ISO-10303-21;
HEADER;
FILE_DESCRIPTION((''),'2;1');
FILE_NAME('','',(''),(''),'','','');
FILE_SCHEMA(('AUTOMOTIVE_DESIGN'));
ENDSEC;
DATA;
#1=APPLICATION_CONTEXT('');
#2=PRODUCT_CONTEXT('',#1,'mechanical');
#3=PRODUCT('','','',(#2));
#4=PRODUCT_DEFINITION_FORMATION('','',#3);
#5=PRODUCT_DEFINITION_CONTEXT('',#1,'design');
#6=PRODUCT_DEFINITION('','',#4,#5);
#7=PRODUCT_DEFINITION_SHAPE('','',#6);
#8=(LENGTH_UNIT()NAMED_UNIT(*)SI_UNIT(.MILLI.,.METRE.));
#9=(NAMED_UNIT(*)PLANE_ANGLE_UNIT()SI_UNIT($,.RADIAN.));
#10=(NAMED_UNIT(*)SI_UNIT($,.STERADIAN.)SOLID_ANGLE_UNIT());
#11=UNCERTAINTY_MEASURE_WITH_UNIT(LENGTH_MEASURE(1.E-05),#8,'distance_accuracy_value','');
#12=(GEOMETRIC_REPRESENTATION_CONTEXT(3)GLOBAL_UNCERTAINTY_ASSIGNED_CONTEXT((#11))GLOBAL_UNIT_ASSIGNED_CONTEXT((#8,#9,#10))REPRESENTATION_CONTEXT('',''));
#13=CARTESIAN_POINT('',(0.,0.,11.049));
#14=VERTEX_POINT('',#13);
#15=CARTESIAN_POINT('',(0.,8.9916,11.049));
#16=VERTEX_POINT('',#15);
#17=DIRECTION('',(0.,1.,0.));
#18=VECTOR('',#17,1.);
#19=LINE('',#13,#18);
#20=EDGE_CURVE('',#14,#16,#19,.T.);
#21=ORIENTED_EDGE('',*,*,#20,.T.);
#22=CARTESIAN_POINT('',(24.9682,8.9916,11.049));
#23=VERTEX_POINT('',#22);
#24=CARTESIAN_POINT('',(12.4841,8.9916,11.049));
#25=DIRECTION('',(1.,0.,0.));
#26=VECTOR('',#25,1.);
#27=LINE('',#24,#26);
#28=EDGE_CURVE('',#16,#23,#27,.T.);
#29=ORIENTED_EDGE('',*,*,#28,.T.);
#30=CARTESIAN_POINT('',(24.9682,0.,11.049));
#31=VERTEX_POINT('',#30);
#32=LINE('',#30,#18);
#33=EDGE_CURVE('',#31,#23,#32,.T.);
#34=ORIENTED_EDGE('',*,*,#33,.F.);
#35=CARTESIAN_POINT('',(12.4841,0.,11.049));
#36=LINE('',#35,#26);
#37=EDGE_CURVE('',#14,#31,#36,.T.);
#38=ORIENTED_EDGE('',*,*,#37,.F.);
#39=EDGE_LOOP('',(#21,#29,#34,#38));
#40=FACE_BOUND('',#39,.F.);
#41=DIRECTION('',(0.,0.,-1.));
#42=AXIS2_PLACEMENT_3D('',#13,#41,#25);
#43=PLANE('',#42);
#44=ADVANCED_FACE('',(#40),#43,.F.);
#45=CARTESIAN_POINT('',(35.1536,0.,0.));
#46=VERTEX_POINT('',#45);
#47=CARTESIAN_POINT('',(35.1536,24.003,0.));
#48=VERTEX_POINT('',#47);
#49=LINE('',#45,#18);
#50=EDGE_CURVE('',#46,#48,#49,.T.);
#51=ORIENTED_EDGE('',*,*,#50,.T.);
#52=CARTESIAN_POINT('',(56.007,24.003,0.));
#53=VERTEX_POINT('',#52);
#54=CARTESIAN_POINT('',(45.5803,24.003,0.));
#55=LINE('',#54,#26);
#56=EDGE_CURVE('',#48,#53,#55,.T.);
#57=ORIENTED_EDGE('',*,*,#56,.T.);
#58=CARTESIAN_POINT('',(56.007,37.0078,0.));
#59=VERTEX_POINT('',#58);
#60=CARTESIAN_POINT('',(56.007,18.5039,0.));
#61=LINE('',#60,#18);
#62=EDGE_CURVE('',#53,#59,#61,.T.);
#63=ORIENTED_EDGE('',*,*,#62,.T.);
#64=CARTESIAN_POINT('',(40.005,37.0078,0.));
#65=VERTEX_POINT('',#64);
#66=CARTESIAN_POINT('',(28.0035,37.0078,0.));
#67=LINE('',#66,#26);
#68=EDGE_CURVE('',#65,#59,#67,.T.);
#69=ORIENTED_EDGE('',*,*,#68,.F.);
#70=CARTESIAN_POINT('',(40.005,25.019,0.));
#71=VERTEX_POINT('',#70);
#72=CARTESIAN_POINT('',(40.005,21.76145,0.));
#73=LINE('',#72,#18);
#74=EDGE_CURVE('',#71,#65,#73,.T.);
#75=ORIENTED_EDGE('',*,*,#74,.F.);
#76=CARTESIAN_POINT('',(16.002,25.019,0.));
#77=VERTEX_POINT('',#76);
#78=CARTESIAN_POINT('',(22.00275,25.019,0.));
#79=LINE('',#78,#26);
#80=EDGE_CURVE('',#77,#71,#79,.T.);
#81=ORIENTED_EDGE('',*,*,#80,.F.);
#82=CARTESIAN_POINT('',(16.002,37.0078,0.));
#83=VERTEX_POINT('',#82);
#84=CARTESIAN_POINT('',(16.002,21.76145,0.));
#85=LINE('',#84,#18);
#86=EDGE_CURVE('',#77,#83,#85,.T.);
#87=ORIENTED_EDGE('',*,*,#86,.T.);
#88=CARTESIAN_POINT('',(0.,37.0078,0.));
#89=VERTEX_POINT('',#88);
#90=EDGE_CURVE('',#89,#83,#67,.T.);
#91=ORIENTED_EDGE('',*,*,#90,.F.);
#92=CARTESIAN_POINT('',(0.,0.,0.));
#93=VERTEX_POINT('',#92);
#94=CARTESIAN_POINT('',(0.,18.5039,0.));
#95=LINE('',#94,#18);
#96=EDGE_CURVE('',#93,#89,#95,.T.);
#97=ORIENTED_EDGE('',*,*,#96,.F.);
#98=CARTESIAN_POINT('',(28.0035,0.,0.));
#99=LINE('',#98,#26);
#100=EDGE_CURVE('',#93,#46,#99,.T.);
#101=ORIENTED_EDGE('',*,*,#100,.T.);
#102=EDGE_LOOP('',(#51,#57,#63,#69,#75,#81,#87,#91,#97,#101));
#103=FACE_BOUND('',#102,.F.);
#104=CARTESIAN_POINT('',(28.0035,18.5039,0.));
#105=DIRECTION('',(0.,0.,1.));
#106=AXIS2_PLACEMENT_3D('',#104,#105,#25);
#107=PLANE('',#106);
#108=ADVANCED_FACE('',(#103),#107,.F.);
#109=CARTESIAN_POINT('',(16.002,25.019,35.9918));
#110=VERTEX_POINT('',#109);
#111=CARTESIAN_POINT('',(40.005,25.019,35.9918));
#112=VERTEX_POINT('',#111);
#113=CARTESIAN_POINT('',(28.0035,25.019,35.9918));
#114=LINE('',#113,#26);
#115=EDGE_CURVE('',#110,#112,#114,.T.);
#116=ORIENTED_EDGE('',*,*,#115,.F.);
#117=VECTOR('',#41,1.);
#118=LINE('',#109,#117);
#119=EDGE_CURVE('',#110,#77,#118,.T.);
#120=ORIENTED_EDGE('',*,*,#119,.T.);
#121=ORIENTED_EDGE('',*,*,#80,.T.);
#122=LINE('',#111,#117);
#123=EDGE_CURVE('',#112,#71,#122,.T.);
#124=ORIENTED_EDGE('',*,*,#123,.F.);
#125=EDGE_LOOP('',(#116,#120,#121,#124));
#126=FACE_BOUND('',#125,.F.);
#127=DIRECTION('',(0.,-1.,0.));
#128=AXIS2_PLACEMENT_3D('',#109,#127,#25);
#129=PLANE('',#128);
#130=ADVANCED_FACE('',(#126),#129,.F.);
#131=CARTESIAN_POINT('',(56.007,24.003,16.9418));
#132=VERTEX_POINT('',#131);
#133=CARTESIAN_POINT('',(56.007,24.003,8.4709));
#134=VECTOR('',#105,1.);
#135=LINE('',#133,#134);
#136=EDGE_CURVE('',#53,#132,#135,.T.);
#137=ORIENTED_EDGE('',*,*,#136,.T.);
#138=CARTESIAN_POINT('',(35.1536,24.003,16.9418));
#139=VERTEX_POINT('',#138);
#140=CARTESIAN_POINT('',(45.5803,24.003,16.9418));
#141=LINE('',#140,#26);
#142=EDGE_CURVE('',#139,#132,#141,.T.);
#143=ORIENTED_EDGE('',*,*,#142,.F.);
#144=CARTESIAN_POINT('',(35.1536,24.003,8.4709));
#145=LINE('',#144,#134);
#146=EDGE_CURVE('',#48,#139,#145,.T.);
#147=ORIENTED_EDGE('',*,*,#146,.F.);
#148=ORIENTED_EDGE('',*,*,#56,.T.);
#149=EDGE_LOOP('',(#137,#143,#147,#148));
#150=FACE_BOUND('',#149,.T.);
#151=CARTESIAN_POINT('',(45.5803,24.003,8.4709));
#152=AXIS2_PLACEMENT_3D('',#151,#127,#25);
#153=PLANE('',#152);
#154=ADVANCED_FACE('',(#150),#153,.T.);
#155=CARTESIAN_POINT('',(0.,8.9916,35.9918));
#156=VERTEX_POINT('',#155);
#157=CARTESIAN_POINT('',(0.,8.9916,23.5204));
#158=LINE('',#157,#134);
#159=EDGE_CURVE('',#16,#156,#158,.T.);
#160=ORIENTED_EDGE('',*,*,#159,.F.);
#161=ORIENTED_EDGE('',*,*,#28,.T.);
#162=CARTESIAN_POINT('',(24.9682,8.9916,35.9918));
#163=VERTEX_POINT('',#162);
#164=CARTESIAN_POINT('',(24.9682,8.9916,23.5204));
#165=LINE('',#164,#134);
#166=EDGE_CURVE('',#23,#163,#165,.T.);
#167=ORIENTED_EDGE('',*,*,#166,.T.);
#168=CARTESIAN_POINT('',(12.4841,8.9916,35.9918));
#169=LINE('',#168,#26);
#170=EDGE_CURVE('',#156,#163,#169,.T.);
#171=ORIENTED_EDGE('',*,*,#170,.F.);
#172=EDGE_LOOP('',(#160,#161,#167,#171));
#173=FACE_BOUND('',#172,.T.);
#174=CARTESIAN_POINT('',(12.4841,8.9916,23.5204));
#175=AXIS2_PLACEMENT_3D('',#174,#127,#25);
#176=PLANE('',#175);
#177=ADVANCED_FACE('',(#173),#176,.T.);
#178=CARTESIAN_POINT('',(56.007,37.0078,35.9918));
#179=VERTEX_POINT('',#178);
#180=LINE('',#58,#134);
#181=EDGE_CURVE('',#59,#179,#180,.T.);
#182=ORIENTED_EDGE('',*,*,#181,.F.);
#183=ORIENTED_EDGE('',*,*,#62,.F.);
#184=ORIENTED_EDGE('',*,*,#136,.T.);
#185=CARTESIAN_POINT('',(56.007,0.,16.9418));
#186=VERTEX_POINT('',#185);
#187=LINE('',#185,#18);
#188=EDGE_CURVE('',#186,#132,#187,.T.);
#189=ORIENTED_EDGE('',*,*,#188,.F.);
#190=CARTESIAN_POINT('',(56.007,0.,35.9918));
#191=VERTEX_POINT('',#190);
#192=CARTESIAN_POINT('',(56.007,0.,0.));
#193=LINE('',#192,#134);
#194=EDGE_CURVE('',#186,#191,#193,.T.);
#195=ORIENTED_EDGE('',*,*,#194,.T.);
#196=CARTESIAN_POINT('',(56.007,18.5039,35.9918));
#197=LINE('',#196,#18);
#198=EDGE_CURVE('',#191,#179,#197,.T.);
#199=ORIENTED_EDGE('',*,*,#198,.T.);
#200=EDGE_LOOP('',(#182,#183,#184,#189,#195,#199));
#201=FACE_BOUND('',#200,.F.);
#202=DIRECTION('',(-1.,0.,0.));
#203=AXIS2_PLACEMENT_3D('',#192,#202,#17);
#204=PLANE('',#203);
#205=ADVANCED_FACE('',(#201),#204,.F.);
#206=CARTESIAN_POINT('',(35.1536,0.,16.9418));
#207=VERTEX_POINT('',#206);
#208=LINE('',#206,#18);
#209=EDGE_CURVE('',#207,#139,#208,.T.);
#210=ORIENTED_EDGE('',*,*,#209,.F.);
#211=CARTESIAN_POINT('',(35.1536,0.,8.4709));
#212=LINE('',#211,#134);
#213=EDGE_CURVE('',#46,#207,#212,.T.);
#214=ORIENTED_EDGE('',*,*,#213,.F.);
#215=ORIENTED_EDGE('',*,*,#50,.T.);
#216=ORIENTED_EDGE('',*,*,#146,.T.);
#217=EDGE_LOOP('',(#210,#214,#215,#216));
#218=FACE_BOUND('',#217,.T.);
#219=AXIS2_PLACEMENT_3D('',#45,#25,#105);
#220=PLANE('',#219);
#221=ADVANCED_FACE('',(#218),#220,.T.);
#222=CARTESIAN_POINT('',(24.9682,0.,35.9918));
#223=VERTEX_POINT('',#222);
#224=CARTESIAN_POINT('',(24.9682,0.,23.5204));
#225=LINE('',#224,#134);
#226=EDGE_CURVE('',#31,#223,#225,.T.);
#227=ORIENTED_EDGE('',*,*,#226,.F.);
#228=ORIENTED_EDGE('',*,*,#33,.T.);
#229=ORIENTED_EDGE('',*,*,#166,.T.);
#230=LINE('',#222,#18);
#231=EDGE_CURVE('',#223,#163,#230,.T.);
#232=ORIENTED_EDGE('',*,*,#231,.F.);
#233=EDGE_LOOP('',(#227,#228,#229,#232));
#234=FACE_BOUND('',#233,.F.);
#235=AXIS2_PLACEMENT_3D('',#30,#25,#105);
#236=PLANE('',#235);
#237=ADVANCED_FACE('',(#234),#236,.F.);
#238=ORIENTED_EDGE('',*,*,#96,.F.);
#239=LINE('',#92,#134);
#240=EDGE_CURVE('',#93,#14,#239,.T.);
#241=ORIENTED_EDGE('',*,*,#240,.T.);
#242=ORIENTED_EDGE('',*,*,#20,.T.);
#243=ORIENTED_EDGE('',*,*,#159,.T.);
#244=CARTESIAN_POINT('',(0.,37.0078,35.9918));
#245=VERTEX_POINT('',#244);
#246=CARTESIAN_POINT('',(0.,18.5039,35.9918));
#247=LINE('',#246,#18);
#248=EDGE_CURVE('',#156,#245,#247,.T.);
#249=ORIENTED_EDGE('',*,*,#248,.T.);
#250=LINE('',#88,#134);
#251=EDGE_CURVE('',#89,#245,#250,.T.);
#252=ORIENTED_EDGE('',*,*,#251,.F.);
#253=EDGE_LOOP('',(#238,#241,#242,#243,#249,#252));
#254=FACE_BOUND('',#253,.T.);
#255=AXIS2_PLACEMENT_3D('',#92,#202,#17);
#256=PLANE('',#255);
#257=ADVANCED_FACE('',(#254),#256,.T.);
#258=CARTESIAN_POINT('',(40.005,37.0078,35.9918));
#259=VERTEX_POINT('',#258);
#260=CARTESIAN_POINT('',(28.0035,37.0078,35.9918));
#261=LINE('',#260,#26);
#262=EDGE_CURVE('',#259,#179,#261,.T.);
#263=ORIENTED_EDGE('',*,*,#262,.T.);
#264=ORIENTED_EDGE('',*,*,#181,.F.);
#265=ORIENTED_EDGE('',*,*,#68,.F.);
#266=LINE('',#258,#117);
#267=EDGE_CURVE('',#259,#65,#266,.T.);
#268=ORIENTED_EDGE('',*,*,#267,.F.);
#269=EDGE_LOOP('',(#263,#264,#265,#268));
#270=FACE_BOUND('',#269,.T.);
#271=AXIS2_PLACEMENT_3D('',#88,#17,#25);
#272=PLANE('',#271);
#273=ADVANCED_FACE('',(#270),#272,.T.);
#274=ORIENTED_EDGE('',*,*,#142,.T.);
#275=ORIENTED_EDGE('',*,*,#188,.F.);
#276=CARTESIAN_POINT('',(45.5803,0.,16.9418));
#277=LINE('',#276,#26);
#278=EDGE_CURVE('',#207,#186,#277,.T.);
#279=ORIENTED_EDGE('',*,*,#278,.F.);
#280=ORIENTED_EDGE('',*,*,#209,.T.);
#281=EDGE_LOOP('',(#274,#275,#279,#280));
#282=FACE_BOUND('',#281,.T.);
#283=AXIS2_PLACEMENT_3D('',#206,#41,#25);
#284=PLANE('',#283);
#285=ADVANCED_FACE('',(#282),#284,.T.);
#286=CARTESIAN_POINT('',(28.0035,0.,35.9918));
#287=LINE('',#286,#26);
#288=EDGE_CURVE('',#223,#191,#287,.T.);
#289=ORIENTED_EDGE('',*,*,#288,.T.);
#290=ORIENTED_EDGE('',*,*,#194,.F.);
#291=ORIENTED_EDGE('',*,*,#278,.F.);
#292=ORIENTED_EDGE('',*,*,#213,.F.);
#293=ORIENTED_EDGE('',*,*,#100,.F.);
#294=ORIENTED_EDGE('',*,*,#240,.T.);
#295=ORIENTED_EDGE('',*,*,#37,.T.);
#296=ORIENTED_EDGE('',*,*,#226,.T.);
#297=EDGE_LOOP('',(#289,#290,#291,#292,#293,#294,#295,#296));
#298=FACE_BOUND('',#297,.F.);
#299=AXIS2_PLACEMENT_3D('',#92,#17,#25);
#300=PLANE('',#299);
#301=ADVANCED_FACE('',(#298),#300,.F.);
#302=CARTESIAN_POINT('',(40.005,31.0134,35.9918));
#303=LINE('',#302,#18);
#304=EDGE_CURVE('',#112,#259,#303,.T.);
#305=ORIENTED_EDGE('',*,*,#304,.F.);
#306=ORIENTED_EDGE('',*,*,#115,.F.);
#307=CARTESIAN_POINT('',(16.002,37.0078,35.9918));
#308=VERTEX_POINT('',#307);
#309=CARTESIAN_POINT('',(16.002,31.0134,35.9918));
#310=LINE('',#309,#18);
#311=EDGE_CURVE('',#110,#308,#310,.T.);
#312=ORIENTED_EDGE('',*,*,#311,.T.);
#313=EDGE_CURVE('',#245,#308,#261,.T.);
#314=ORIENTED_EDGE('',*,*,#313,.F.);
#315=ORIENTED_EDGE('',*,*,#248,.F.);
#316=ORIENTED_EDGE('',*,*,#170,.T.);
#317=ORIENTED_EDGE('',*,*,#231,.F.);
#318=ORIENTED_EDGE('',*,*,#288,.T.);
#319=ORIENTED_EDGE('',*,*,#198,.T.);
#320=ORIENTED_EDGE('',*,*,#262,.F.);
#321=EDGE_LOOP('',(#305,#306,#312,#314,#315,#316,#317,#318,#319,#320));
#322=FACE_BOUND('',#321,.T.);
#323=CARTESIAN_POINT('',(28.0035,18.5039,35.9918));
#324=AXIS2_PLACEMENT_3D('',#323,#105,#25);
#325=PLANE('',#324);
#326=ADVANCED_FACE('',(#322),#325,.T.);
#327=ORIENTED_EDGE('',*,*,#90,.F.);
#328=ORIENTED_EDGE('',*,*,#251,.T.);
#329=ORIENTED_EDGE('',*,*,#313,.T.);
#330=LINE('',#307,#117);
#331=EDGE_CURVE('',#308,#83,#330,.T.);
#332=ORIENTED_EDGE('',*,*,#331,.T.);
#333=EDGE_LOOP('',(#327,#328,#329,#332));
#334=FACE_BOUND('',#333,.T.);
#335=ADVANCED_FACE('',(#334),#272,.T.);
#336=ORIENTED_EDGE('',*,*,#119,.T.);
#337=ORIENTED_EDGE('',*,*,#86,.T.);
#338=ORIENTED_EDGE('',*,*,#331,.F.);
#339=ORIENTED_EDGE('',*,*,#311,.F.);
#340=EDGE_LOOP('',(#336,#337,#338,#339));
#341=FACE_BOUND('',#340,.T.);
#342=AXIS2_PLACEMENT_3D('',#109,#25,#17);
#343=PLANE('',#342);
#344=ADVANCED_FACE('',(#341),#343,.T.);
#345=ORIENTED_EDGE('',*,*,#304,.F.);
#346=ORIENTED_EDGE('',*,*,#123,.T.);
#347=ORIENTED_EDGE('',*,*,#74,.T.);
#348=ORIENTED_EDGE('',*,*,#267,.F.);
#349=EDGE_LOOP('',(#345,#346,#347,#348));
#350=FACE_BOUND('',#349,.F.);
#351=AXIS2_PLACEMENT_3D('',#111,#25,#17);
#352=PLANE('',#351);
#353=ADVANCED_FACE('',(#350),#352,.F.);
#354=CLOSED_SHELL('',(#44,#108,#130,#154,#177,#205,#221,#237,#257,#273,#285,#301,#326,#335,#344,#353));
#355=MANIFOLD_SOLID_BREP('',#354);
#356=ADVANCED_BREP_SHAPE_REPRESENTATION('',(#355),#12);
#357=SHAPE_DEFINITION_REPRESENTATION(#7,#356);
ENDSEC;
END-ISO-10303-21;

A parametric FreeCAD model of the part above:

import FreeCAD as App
import Part
import Sketcher
from FreeCAD import Vector
Q = App.Units.Quantity


def add_polygon(sketch, points):
    """Adds a closed chain of lines whose ends are joined by coincident constraints."""
    first, n = sketch.GeometryCount, len(points)
    for a, b in zip(points, points[1:] + points[:1]):
        sketch.addGeometry(Part.LineSegment(App.Vector(*a, 0), App.Vector(*b, 0)), False)
    for i in range(n):
        sketch.addConstraint(Sketcher.Constraint("Coincident", first + i, 2, first + (i + 1) % n, 1))

doc = App.newDocument("Part")
body = doc.addObject("PartDesign::Body", "Body")

sketch1 = doc.addObject("Sketcher::SketchObject", "Sketch")
body.addObject(sketch1)
sketch1.AttachmentSupport = (doc.XY_Plane, [""])
sketch1.MapMode = "FlatFace"
add_polygon(sketch1, [(0, 37.0078), (0, 0), (56.007, 0), (56.007, 37.0078)])
sketch1.addConstraint([
    Sketcher.Constraint("Vertical", 0),
    Sketcher.Constraint("Horizontal", 1),
    Sketcher.Constraint("Vertical", 2),
    Sketcher.Constraint("Horizontal", 3),
    Sketcher.Constraint("Coincident", 0, 2, -1, 1),
    Sketcher.Constraint("DistanceX", 1, 1, 1, 2, Q("2.205 in")),
    Sketcher.Constraint("DistanceY", 0, 2, 0, 1, Q("1.457 in")),
])
pad1 = doc.addObject("PartDesign::Pad", "Pad")
body.addObject(pad1)
pad1.Profile = sketch1
pad1.Length = Q("1.417 in")

sketch2 = doc.addObject("Sketcher::SketchObject", "Sketch001")
body.addObject(sketch2)
sketch2.AttachmentSupport = (doc.XY_Plane, [""])
sketch2.MapMode = "FlatFace"
sketch2.AttachmentOffset = App.Placement(Vector(0, 0, 1.417 * 25.4), App.Rotation())
add_polygon(sketch2, [(16.002, 37.0078), (16.002, 25.019), (40.005, 25.019), (40.005, 37.0078)])
sketch2.addConstraint([
    Sketcher.Constraint("Vertical", 0),
    Sketcher.Constraint("Horizontal", 1),
    Sketcher.Constraint("Vertical", 2),
    Sketcher.Constraint("Horizontal", 3),
    Sketcher.Constraint("DistanceX", 1, 1, 1, 2, Q("0.945 in")),
    Sketcher.Constraint("DistanceY", 0, 2, 0, 1, Q("0.472 in")),
    Sketcher.Constraint("DistanceX", -1, 1, 0, 2, Q("0.63 in")),
    Sketcher.Constraint("DistanceY", -1, 1, 0, 2, Q("0.985 in")),
])
pocket1 = doc.addObject("PartDesign::Pocket", "Pocket")
body.addObject(pocket1)
pocket1.Profile = sketch2
pocket1.Length = Q("3.21 in")

sketch3 = doc.addObject("Sketcher::SketchObject", "Sketch002")
body.addObject(sketch3)
sketch3.AttachmentSupport = (doc.XZ_Plane, [""])
sketch3.MapMode = "FlatFace"
add_polygon(sketch3, [(0, 35.9918), (0, 11.049), (24.9682, 11.049), (24.9682, 35.9918)])
sketch3.addConstraint([
    Sketcher.Constraint("Vertical", 0),
    Sketcher.Constraint("Horizontal", 1),
    Sketcher.Constraint("Vertical", 2),
    Sketcher.Constraint("Horizontal", 3),
    Sketcher.Constraint("PointOnObject", 0, 2, -2),
    Sketcher.Constraint("DistanceX", 1, 1, 1, 2, Q("0.983 in")),
    Sketcher.Constraint("DistanceY", 0, 2, 0, 1, Q("0.982 in")),
    Sketcher.Constraint("DistanceY", -1, 1, 0, 2, Q("0.435 in")),
])
pocket2 = doc.addObject("PartDesign::Pocket", "Pocket001")
body.addObject(pocket2)
pocket2.Profile = sketch3
pocket2.Length = Q("0.354 in")

sketch4 = doc.addObject("Sketcher::SketchObject", "Sketch003")
body.addObject(sketch4)
sketch4.AttachmentSupport = (doc.XZ_Plane, [""])
sketch4.MapMode = "FlatFace"
add_polygon(sketch4, [(35.1536, 16.9418), (35.1536, 0), (56.007, 0), (56.007, 16.9418)])
sketch4.addConstraint([
    Sketcher.Constraint("Vertical", 0),
    Sketcher.Constraint("Horizontal", 1),
    Sketcher.Constraint("Vertical", 2),
    Sketcher.Constraint("Horizontal", 3),
    Sketcher.Constraint("PointOnObject", 0, 2, -1),
    Sketcher.Constraint("DistanceX", 1, 1, 1, 2, Q("0.821 in")),
    Sketcher.Constraint("DistanceY", 0, 2, 0, 1, Q("0.667 in")),
    Sketcher.Constraint("DistanceX", -1, 1, 0, 2, Q("1.384 in")),
])
pocket3 = doc.addObject("PartDesign::Pocket", "Pocket002")
body.addObject(pocket3)
pocket3.Profile = sketch4
pocket3.Length = Q("0.945 in")

doc.recompute()
